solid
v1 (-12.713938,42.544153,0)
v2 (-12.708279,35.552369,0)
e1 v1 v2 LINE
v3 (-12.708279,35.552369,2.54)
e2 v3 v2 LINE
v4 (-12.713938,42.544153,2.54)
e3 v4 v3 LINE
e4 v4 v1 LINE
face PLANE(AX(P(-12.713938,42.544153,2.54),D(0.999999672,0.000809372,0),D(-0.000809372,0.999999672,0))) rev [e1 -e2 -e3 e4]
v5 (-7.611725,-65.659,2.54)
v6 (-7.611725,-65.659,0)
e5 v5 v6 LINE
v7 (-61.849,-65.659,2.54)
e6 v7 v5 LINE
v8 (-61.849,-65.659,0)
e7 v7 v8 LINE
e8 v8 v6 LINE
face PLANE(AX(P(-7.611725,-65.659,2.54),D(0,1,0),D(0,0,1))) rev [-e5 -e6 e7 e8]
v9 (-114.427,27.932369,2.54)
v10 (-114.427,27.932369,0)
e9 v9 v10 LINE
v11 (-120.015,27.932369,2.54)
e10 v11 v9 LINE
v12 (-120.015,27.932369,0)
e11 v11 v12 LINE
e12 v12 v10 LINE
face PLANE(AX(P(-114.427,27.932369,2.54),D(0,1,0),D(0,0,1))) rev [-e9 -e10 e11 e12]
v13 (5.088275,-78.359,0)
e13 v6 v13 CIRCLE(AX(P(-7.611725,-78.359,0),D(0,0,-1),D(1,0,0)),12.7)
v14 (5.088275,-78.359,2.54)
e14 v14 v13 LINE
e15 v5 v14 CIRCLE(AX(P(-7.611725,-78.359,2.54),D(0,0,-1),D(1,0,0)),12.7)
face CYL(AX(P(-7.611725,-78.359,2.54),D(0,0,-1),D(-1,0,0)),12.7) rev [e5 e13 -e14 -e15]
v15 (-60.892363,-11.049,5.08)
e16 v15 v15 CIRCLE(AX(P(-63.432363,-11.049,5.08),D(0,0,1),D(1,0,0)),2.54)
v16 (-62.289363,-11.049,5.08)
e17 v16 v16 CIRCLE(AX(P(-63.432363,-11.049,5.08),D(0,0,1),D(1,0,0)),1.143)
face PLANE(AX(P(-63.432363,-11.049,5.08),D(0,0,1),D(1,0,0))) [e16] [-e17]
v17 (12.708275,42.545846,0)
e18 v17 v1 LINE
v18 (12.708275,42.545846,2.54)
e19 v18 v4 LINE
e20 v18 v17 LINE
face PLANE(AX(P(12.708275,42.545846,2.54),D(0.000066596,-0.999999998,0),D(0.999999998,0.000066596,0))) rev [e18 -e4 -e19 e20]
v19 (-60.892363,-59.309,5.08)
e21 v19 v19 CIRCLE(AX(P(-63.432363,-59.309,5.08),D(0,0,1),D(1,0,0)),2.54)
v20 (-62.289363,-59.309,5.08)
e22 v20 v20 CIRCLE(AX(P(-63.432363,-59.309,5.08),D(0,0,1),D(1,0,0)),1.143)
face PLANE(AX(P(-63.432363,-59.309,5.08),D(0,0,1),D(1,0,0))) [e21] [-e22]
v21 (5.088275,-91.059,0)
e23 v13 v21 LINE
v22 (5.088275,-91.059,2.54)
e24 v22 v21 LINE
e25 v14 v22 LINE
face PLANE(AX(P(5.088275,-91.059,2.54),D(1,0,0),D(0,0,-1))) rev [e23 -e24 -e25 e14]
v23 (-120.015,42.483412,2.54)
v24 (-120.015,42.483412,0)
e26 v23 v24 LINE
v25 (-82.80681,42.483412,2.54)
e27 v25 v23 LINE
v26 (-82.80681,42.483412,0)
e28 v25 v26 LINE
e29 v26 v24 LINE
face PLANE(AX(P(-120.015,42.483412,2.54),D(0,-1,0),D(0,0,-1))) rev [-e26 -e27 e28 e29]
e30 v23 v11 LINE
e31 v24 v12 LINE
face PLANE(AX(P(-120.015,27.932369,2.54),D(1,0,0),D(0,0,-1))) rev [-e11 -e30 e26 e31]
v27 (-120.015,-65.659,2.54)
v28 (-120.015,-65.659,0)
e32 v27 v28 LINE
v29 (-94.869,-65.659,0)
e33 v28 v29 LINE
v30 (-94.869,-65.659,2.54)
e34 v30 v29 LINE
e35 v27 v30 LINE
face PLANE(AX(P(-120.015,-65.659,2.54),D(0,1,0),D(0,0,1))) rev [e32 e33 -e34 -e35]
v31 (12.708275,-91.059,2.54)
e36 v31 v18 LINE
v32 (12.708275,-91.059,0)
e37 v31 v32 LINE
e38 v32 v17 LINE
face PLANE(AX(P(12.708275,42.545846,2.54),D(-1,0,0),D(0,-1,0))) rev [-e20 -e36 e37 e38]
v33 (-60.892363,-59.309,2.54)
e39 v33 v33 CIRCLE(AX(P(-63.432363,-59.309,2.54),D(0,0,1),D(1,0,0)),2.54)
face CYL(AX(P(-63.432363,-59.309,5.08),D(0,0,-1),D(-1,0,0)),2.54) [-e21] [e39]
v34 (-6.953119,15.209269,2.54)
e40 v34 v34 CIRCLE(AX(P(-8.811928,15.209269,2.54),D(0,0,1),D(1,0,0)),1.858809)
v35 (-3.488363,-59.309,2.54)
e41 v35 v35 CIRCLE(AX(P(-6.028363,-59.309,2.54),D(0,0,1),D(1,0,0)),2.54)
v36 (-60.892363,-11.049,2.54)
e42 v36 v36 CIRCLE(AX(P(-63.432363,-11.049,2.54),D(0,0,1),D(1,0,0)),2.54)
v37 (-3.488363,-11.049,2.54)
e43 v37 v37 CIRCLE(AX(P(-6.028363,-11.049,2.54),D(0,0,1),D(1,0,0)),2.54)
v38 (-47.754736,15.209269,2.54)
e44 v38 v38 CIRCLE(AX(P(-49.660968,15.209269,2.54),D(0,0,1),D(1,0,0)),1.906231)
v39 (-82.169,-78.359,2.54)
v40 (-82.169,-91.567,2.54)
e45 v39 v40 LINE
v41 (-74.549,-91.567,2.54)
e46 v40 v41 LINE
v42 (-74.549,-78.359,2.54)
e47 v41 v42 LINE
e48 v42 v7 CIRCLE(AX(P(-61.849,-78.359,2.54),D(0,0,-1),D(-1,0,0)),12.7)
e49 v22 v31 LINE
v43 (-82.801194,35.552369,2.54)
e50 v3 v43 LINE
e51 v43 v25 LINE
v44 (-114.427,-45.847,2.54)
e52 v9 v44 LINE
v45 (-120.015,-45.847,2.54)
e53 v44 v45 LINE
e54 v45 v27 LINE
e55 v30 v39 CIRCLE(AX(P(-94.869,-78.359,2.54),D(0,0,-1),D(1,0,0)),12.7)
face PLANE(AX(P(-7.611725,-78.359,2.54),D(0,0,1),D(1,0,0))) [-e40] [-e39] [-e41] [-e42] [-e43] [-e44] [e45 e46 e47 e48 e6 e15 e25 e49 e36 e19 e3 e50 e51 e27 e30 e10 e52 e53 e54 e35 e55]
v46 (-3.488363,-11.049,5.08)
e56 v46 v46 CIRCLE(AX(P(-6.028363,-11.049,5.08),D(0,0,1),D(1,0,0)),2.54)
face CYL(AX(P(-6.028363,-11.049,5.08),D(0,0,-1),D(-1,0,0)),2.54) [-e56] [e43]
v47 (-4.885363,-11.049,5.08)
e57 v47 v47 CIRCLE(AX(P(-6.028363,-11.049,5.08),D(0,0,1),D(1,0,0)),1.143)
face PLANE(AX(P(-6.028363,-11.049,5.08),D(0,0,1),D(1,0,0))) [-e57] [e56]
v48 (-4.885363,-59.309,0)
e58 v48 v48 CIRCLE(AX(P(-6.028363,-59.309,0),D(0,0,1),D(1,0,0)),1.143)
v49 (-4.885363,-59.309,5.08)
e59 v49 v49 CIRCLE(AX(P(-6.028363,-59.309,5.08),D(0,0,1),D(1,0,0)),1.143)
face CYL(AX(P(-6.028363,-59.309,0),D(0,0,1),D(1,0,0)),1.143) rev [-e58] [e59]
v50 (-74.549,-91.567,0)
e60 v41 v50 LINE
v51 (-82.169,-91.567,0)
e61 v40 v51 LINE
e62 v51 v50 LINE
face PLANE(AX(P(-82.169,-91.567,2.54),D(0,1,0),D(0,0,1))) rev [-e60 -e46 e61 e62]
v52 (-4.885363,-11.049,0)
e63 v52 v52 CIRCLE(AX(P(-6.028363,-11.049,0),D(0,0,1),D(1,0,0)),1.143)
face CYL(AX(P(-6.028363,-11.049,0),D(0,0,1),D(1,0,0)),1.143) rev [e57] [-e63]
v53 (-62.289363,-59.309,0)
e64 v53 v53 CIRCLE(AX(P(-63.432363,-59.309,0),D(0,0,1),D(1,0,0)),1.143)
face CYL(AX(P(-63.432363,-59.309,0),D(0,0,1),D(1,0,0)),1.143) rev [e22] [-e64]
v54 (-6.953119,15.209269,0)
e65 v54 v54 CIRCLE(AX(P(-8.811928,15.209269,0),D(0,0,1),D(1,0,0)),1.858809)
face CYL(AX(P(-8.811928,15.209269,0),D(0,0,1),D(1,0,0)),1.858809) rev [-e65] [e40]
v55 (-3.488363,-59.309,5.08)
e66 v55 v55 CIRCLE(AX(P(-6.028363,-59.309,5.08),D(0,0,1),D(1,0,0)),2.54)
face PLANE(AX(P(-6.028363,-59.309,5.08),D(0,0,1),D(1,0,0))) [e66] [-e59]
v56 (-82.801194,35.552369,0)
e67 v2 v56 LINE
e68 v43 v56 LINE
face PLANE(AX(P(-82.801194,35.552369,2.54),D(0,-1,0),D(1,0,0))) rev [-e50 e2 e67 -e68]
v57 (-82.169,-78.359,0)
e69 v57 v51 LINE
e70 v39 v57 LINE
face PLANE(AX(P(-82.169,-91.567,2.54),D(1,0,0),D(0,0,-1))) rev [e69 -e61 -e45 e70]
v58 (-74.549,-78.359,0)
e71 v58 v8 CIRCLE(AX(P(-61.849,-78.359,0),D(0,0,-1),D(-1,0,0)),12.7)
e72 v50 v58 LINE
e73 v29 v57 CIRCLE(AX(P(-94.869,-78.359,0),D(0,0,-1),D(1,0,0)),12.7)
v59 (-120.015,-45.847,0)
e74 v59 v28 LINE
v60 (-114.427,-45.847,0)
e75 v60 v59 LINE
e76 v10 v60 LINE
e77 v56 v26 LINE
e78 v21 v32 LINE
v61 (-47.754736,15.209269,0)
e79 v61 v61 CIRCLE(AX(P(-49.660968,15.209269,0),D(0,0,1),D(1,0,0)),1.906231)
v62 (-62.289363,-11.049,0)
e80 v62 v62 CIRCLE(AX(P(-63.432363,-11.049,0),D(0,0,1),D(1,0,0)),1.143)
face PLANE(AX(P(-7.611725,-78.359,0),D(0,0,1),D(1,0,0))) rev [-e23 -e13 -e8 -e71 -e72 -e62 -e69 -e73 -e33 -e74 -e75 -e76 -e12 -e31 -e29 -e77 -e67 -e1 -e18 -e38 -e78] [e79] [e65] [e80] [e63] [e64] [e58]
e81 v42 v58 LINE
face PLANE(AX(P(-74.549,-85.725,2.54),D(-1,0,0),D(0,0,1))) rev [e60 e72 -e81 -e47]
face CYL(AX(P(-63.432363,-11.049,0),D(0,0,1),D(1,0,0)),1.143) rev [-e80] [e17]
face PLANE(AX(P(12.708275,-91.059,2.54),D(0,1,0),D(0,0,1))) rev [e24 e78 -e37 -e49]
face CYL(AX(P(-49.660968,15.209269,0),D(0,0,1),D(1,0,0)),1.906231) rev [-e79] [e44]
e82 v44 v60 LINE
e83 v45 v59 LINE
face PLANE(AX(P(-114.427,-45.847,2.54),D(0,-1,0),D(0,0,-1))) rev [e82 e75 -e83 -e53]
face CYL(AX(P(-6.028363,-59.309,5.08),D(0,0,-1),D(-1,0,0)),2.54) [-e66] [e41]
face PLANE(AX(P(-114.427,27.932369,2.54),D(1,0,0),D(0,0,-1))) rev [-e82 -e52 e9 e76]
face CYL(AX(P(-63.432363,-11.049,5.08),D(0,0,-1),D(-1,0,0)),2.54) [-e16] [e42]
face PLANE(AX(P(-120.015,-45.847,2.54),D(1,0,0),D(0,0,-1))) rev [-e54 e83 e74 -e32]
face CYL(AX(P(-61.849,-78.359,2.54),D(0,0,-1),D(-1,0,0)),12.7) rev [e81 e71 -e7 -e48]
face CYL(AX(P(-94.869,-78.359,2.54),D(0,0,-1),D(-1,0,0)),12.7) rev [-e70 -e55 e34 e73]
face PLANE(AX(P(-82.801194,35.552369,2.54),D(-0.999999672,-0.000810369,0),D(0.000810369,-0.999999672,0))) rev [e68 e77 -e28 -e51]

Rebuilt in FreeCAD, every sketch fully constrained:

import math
import FreeCAD as App
import Part
import Sketcher

V = App.Vector
Q = App.Units.Quantity

doc = App.newDocument("Part")
body = doc.addObject("PartDesign::Body", "Body")

sketch1 = body.newObject("Sketcher::SketchObject", "Sketch")
sketch1.AttachmentSupport = (doc.getObject("XY_Plane"), [""])
sketch1.MapMode = "FlatFace"
sketch1.addGeometry([
    Part.LineSegment(V(-120.015, 27.932369, 0), V(-114.427, 27.932369, 0)),
    Part.LineSegment(V(-114.427, 27.932369, 0), V(-114.427, -45.847, 0)),
    Part.LineSegment(V(-114.427, -45.847, 0), V(-120.015, -45.847, 0)),
    Part.LineSegment(V(-120.015, -45.847, 0), V(-120.015, -65.659, 0)),
    Part.LineSegment(V(-120.015, -65.659, 0), V(-94.869, -65.659, 0)),
    Part.ArcOfCircle(Part.Circle(V(-94.869, -78.359, 0), V(0, 0, 1), 12.7), math.radians(0), math.radians(90)),
    Part.LineSegment(V(-82.169, -78.359, 0), V(-82.169, -91.567, 0)),
    Part.LineSegment(V(-82.169, -91.567, 0), V(-74.549, -91.567, 0)),
    Part.LineSegment(V(-74.549, -91.567, 0), V(-74.549, -78.359, 0)),
    Part.ArcOfCircle(Part.Circle(V(-61.849, -78.359, 0), V(0, 0, 1), 12.7), math.radians(90), math.radians(180)),
    Part.LineSegment(V(-61.849, -65.659, 0), V(-7.611725, -65.659, 0)),
    Part.ArcOfCircle(Part.Circle(V(-7.611725, -78.359, 0), V(0, 0, 1), 12.7), math.radians(0), math.radians(90)),
    Part.LineSegment(V(5.088275, -78.359, 0), V(5.088275, -91.059, 0)),
    Part.LineSegment(V(5.088275, -91.059, 0), V(12.708275, -91.059, 0)),
    Part.LineSegment(V(12.708275, -91.059, 0), V(12.708275, 42.545846, 0)),
    Part.LineSegment(V(12.708275, 42.545846, 0), V(-12.713938, 42.544153, 0)),
    Part.LineSegment(V(-12.713938, 42.544153, 0), V(-12.708279, 35.552369, 0)),
    Part.LineSegment(V(-12.708279, 35.552369, 0), V(-82.801194, 35.552369, 0)),
    Part.LineSegment(V(-82.801194, 35.552369, 0), V(-82.80681, 42.483412, 0)),
    Part.LineSegment(V(-82.80681, 42.483412, 0), V(-120.015, 42.483412, 0)),
    Part.LineSegment(V(-120.015, 42.483412, 0), V(-120.015, 27.932369, 0)),
], False)
sketch1.addConstraint([
    Sketcher.Constraint("Coincident", 0, 2, 1, 1),
    Sketcher.Constraint("Coincident", 1, 2, 2, 1),
    Sketcher.Constraint("Coincident", 2, 2, 3, 1),
    Sketcher.Constraint("Coincident", 3, 2, 4, 1),
    Sketcher.Constraint("Tangent", 4, 2, 5, 2),
    Sketcher.Constraint("Tangent", 5, 1, 6, 1),
    Sketcher.Constraint("Coincident", 6, 2, 7, 1),
    Sketcher.Constraint("Coincident", 7, 2, 8, 1),
    Sketcher.Constraint("Tangent", 8, 2, 9, 2),
    Sketcher.Constraint("Tangent", 9, 1, 10, 1),
    Sketcher.Constraint("Tangent", 10, 2, 11, 2),
    Sketcher.Constraint("Tangent", 11, 1, 12, 1),
    Sketcher.Constraint("Coincident", 12, 2, 13, 1),
    Sketcher.Constraint("Coincident", 13, 2, 14, 1),
    Sketcher.Constraint("Coincident", 14, 2, 15, 1),
    Sketcher.Constraint("Coincident", 15, 2, 16, 1),
    Sketcher.Constraint("Coincident", 16, 2, 17, 1),
    Sketcher.Constraint("Coincident", 17, 2, 18, 1),
    Sketcher.Constraint("Coincident", 18, 2, 19, 1),
    Sketcher.Constraint("Coincident", 19, 2, 20, 1),
    Sketcher.Constraint("Coincident", 20, 2, 0, 1),
    Sketcher.Constraint("Horizontal", 0),
    Sketcher.Constraint("Vertical", 1),
    Sketcher.Constraint("Horizontal", 2),
    Sketcher.Constraint("Vertical", 3),
    Sketcher.Constraint("Horizontal", 4),
    Sketcher.Constraint("Vertical", 6),
    Sketcher.Constraint("Horizontal", 7),
    Sketcher.Constraint("Vertical", 8),
    Sketcher.Constraint("Horizontal", 10),
    Sketcher.Constraint("Vertical", 12),
    Sketcher.Constraint("Horizontal", 13),
    Sketcher.Constraint("Vertical", 14),
    Sketcher.Constraint("Horizontal", 17),
    Sketcher.Constraint("Horizontal", 19),
    Sketcher.Constraint("Vertical", 20),
    Sketcher.Constraint("Equal", 5, 9),
    Sketcher.Constraint("Equal", 9, 11),
    Sketcher.Constraint("Parallel", 16, 18),
    Sketcher.Constraint("Horizontal", 5, 3, 9, 3),
    Sketcher.Constraint("Vertical", 3, 2, 19, 2),
    Sketcher.Constraint("Equal", 7, 13),
    Sketcher.Constraint("Radius", 5, Q("0.5 in")),
    Sketcher.Constraint("DistanceX", 7, 1, 7, 2, Q("0.3 in")),
    Sketcher.Constraint("DistanceY", 12, 2, 12, 1, Q("0.5 in")),
    Sketcher.Constraint("DistanceX", 0, 1, 0, 2, Q("0.22 in")),
    Sketcher.Constraint("DistanceX", 4, 1, 4, 2, Q("0.99 in")),
    Sketcher.Constraint("DistanceY", 3, 2, 3, 1, Q("0.78 in")),
    Sketcher.Constraint("DistanceY", 6, 2, 6, 1, Q("0.52 in")),
    Sketcher.Constraint("DistanceY", 0, 2, 16, 2, Q("0.3 in")),
    Sketcher.Constraint("DistanceX", 5, 3, -1, 1, Q("3.735 in")),
    Sketcher.Constraint("DistanceY", 5, 3, -1, 1, Q("3.085 in")),
    Sketcher.Constraint("DistanceX", 19, 2, 19, 1, 37.20819),
    Sketcher.Constraint("DistanceY", 1, 2, 1, 1, 73.779369),
    Sketcher.Constraint("DistanceX", 10, 1, 10, 2, 54.237275),
    Sketcher.Constraint("DistanceX", 17, 2, 17, 1, 70.092915),
    Sketcher.Constraint("DistanceY", 14, 1, 14, 2, 133.604846),
    Sketcher.Constraint("DistanceY", 20, 2, 20, 1, 14.551044),
    Sketcher.Constraint("DistanceX", 16, 2, -1, 1, 12.708279),
    Sketcher.Constraint("DistanceY", 18, 2, 15, 2, 0.060741),
])
pad1 = body.newObject("PartDesign::Pad", "Pad")
pad1.Profile = sketch1
pad1.Length = Q("0.1 in")

sketch2 = body.newObject("Sketcher::SketchObject", "Sketch001")
sketch2.AttachmentSupport = (doc.getObject("XY_Plane"), [""])
sketch2.MapMode = "FlatFace"
sketch2.AttachmentOffset = App.Placement(V(0, 0, 0.1 * 25.4), App.Rotation())
sketch2.addGeometry([
    Part.Circle(V(-63.432363, -59.309, 0), V(0, 0, 1), 2.54),
    Part.Circle(V(-6.028363, -59.309, 0), V(0, 0, 1), 2.54),
    Part.Circle(V(-6.028363, -11.049, 0), V(0, 0, 1), 2.54),
    Part.Circle(V(-63.432363, -11.049, 0), V(0, 0, 1), 2.54),
], False)
sketch2.addConstraint([
    Sketcher.Constraint("Equal", 0, 1),
    Sketcher.Constraint("Equal", 1, 2),
    Sketcher.Constraint("Equal", 2, 3),
    Sketcher.Constraint("Horizontal", 0, 3, 1, 3),
    Sketcher.Constraint("Horizontal", 2, 3, 3, 3),
    Sketcher.Constraint("Vertical", 1, 3, 2, 3),
    Sketcher.Constraint("Vertical", 0, 3, 3, 3),
    Sketcher.Constraint("Diameter", 0, Q("0.2 in")),
    Sketcher.Constraint("DistanceY", 1, 3, 2, 3, Q("1.9 in")),
    Sketcher.Constraint("DistanceX", 0, 3, 1, 3, Q("2.26 in")),
    Sketcher.Constraint("DistanceY", 0, 3, -1, 1, Q("2.335 in")),
    Sketcher.Constraint("DistanceX", 0, 3, -1, 1, 63.432363),
])
pad2 = body.newObject("PartDesign::Pad", "Pad001")
pad2.Profile = sketch2
pad2.Length = Q("0.1 in")

sketch3 = body.newObject("Sketcher::SketchObject", "Sketch002")
sketch3.AttachmentSupport = (doc.getObject("XY_Plane"), [""])
sketch3.MapMode = "FlatFace"
sketch3.AttachmentOffset = App.Placement(V(0, 0, 0.2 * 25.4), App.Rotation())
sketch3.addGeometry([
    Part.Circle(V(-6.028363, -59.309, 0), V(0, 0, 1), 1.143),
    Part.Circle(V(-63.432363, -59.309, 0), V(0, 0, 1), 1.143),
    Part.Circle(V(-63.432363, -11.049, 0), V(0, 0, 1), 1.143),
    Part.Circle(V(-6.028363, -11.049, 0), V(0, 0, 1), 1.143),
], False)
sketch3.addConstraint([
    Sketcher.Constraint("Equal", 0, 1),
    Sketcher.Constraint("Equal", 1, 2),
    Sketcher.Constraint("Equal", 2, 3),
    Sketcher.Constraint("Horizontal", 0, 3, 1, 3),
    Sketcher.Constraint("Horizontal", 2, 3, 3, 3),
    Sketcher.Constraint("Vertical", 1, 3, 2, 3),
    Sketcher.Constraint("Vertical", 0, 3, 3, 3),
    Sketcher.Constraint("Diameter", 0, Q("0.09 in")),
    Sketcher.Constraint("DistanceY", 1, 3, 2, 3, Q("1.9 in")),
    Sketcher.Constraint("DistanceX", 1, 3, 0, 3, Q("2.26 in")),
    Sketcher.Constraint("DistanceY", 0, 3, -1, 1, Q("2.335 in")),
    Sketcher.Constraint("DistanceX", 0, 3, -1, 1, 6.028363),
])
pocket1 = body.newObject("PartDesign::Pocket", "Pocket")
pocket1.Profile = sketch3
pocket1.Type = "ThroughAll"

sketch4 = body.newObject("Sketcher::SketchObject", "Sketch003")
sketch4.AttachmentSupport = (doc.getObject("XY_Plane"), [""])
sketch4.MapMode = "FlatFace"
sketch4.AttachmentOffset = App.Placement(V(0, 0, 0.1 * 25.4), App.Rotation())
sketch4.addGeometry([
    Part.Circle(V(-8.811928, 15.209269, 0), V(0, 0, 1), 1.858809),
    Part.Circle(V(-49.660968, 15.209269, 0), V(0, 0, 1), 1.906231),
], False)
sketch4.addConstraint([
    Sketcher.Constraint("Horizontal", 0, 3, 1, 3),
    Sketcher.Constraint("Diameter", 0, 3.717617),
    Sketcher.Constraint("Diameter", 1, 3.812463),
    Sketcher.Constraint("DistanceY", -1, 1, 0, 3, 15.209269),
    Sketcher.Constraint("DistanceX", 1, 3, 0, 3, 40.84904),
    Sketcher.Constraint("DistanceX", 0, 3, -1, 1, 8.811928),
])
pocket2 = body.newObject("PartDesign::Pocket", "Pocket001")
pocket2.Profile = sketch4
pocket2.Type = "ThroughAll"

doc.recompute()
